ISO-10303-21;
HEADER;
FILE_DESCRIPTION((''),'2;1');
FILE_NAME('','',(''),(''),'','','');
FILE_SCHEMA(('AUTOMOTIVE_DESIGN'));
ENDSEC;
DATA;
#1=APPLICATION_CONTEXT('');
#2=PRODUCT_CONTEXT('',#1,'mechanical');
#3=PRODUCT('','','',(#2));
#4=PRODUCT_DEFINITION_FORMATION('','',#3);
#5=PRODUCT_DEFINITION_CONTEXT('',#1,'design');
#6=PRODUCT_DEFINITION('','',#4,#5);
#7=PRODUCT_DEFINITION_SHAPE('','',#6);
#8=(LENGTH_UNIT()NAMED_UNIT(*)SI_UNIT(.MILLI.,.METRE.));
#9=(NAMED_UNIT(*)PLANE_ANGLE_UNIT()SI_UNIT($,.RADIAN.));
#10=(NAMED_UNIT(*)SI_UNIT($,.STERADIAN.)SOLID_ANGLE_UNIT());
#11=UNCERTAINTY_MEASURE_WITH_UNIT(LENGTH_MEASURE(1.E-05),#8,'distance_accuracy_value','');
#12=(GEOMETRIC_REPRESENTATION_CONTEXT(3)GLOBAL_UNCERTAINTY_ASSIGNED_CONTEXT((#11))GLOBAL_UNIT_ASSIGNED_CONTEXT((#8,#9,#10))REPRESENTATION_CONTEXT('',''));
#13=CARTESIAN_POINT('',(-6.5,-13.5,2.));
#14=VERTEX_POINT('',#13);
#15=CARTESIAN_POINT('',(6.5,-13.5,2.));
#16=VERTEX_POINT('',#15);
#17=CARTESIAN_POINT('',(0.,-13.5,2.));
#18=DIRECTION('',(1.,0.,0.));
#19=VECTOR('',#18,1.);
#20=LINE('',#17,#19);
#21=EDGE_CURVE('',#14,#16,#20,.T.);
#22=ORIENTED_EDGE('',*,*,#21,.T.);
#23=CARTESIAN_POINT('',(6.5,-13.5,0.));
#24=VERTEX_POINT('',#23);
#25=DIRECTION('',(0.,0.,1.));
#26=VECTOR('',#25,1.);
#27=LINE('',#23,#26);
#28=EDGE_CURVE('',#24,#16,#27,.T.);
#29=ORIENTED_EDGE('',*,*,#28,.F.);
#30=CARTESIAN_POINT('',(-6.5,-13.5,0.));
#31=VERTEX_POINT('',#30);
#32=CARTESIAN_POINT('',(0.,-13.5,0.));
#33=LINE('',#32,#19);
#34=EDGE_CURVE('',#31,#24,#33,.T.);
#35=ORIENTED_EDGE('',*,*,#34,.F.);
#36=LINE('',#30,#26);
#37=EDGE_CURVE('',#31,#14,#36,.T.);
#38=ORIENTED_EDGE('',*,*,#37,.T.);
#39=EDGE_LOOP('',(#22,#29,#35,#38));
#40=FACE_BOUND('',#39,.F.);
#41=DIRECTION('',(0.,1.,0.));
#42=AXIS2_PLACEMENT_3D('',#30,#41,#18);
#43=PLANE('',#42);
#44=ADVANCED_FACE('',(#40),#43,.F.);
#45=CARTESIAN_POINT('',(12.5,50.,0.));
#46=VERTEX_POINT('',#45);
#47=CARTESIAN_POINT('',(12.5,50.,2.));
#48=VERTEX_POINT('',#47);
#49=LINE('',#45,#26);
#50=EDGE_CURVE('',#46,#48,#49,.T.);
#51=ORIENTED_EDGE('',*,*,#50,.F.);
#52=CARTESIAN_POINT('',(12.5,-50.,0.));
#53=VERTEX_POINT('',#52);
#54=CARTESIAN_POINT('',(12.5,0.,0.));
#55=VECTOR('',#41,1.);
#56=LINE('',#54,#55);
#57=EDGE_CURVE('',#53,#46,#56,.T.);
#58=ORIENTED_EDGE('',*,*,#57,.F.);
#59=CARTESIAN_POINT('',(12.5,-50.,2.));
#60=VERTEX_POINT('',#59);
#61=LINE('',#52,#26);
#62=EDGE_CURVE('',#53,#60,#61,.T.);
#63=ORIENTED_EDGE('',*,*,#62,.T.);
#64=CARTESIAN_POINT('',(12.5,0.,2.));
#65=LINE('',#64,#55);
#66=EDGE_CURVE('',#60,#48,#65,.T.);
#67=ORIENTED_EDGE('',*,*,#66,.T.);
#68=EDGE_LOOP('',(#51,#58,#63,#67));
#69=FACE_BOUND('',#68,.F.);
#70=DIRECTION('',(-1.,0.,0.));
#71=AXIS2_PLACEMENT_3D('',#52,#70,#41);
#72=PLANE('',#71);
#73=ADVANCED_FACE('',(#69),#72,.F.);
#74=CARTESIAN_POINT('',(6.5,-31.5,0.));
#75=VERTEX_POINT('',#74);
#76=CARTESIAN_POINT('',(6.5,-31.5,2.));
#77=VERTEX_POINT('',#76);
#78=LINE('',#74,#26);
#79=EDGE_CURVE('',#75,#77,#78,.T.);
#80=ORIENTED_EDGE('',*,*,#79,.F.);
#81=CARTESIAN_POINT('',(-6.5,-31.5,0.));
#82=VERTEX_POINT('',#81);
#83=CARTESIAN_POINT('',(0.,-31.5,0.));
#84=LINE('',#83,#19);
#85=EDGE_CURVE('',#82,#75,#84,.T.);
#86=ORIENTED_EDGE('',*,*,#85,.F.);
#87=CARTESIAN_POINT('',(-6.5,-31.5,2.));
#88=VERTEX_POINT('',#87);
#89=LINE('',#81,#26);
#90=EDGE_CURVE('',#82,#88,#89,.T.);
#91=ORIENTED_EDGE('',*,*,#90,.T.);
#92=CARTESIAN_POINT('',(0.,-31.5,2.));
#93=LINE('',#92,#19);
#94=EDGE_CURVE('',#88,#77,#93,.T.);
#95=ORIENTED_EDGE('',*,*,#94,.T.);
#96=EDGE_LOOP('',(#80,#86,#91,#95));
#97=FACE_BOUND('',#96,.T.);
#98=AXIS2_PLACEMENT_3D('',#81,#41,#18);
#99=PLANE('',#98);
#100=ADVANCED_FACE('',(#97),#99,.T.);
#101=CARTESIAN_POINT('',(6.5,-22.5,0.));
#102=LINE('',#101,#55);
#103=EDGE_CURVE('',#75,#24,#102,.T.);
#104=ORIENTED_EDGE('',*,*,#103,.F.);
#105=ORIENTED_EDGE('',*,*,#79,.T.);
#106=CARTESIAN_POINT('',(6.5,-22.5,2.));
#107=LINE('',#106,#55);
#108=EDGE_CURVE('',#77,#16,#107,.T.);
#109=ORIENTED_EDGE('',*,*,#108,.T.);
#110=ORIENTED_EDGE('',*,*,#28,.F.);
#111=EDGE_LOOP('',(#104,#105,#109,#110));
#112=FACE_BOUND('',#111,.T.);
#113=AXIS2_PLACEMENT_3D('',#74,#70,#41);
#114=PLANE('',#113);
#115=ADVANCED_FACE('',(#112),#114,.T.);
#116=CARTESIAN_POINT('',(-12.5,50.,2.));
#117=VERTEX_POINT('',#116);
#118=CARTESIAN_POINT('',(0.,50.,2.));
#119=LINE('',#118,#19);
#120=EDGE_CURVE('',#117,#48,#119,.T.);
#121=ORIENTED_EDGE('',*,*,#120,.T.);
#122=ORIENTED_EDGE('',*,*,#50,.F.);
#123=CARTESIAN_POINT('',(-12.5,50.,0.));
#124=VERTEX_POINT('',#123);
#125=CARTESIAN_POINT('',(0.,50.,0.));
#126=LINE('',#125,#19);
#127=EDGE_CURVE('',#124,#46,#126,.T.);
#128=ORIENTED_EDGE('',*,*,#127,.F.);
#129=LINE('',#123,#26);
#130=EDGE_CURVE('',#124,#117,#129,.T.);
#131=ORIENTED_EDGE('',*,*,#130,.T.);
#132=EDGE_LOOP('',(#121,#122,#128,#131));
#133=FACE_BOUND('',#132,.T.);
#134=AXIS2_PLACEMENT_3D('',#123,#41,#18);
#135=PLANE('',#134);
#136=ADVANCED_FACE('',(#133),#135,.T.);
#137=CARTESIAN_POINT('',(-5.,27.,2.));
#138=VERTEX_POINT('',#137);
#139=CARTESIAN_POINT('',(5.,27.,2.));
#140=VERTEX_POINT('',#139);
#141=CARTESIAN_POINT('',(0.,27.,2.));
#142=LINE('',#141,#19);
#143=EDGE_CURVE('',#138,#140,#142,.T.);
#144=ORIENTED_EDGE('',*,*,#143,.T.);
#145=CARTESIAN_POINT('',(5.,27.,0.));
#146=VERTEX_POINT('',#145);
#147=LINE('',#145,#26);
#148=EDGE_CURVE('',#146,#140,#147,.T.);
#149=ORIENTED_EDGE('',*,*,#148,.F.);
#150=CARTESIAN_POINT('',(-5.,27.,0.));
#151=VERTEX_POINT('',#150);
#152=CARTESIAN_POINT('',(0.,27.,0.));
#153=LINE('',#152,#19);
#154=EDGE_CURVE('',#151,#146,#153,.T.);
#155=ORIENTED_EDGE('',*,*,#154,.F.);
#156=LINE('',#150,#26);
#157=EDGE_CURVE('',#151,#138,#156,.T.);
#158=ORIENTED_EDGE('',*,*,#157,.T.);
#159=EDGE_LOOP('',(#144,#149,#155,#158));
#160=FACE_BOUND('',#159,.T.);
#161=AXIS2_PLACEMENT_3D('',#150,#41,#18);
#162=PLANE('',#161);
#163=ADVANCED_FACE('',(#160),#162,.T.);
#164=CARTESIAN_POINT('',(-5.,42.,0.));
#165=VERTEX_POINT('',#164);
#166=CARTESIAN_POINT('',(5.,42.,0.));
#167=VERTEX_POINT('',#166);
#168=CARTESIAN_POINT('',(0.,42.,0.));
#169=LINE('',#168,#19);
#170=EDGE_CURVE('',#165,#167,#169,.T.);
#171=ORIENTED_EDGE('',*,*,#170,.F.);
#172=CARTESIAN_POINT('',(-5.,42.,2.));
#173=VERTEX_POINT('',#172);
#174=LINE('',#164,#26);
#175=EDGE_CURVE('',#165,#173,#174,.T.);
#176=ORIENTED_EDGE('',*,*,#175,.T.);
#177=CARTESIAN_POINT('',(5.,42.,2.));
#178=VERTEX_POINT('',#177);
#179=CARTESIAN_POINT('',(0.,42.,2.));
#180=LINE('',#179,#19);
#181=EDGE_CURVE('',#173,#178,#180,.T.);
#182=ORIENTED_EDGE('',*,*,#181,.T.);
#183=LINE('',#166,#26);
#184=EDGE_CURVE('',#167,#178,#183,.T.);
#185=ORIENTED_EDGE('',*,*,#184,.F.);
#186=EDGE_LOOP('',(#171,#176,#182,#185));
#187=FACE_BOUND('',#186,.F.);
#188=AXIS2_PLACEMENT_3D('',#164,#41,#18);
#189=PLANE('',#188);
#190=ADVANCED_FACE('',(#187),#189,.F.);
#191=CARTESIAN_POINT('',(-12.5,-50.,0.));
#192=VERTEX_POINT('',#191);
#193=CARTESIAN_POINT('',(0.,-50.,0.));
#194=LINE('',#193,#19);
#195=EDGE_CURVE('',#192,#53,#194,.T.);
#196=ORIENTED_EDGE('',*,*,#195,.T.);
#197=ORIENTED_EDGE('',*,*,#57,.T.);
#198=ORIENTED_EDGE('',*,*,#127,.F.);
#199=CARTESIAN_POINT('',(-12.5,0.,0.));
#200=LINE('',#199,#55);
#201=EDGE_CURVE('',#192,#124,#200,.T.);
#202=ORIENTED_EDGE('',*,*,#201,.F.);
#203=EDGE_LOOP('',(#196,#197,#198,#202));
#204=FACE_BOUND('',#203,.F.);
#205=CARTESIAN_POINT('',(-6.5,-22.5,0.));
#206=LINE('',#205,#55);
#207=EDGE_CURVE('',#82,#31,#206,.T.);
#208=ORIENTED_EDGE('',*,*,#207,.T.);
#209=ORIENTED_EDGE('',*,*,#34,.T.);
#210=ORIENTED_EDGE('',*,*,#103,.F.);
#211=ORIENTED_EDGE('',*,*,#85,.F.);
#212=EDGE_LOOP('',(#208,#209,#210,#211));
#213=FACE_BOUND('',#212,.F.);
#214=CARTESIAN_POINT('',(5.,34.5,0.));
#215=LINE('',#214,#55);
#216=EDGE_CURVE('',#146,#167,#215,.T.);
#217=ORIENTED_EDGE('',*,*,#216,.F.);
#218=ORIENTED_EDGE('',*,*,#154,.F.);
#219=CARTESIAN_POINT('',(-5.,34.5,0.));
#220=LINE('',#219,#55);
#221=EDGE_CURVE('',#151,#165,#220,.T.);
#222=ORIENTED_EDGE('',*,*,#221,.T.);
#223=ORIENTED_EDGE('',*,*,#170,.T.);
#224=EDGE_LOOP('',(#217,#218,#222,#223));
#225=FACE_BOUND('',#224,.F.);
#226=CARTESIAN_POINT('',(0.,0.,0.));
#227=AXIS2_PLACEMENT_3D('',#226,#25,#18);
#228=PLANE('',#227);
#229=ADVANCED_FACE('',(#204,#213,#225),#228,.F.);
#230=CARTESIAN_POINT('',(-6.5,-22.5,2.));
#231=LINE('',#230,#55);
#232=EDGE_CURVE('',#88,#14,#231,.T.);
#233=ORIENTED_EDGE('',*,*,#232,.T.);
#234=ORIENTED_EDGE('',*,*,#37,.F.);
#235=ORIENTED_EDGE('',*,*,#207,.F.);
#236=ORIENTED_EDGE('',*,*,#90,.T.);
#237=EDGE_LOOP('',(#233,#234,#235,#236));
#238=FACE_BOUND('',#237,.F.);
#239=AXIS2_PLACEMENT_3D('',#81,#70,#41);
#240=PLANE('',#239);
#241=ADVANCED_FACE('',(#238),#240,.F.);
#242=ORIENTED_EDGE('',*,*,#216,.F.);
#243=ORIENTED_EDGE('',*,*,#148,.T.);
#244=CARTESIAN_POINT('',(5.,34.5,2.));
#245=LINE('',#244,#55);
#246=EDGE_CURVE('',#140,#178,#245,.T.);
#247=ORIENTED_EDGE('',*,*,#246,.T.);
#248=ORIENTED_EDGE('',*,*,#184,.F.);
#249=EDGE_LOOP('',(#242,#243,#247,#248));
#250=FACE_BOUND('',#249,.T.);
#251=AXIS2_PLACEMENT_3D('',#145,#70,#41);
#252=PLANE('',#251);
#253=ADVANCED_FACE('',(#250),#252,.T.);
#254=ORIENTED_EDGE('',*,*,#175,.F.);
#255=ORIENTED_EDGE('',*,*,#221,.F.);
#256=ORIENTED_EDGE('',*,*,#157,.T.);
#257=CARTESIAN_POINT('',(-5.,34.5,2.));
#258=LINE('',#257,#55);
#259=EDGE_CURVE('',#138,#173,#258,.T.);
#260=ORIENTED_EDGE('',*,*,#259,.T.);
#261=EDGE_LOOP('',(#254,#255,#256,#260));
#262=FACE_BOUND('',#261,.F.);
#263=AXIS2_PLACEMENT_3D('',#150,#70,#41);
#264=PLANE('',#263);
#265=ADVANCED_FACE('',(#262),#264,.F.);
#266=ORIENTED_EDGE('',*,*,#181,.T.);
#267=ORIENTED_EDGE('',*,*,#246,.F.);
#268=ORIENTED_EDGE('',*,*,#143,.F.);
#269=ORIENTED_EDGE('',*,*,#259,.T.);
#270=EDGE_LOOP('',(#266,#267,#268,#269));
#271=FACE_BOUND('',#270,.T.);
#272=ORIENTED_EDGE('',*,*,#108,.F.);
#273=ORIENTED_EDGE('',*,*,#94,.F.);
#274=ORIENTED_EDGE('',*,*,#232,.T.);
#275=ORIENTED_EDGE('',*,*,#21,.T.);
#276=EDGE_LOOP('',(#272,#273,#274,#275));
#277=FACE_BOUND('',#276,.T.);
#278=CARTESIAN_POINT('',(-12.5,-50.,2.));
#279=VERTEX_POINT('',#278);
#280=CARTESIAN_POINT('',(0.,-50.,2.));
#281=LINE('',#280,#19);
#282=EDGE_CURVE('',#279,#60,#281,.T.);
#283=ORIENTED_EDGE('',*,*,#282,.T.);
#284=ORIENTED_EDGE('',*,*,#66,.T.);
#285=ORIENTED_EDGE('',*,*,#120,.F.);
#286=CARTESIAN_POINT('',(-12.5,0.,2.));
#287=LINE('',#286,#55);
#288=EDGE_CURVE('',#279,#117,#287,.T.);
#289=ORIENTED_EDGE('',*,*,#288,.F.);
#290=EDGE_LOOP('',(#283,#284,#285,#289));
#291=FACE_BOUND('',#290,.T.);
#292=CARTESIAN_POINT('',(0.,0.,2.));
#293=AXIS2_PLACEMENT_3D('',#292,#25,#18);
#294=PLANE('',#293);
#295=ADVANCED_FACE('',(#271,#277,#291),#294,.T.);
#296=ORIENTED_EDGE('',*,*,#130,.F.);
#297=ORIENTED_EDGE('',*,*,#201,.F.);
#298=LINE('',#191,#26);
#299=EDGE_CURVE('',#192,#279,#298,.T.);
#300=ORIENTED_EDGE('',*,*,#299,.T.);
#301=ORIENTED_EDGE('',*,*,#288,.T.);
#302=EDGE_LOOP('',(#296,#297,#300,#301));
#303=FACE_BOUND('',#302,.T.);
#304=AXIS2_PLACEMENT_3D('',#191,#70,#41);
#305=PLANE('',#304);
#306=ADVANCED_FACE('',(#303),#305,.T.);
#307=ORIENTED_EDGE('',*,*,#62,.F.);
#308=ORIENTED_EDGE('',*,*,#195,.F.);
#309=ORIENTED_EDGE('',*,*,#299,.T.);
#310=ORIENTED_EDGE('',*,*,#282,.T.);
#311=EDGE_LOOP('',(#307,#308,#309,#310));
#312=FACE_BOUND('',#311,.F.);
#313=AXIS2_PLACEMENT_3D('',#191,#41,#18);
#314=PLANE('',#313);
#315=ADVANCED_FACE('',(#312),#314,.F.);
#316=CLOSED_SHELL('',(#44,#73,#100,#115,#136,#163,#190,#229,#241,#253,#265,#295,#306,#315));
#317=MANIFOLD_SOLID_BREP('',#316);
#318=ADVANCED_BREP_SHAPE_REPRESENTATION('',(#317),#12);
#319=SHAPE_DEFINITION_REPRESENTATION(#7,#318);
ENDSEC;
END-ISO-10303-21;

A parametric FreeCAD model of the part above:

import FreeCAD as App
import Part
import Sketcher
Q = App.Units.Quantity

doc = App.newDocument("Part")
params = doc.addObject("Spreadsheet::Sheet", "Params")
for row, (alias, value) in enumerate([
    ("sketch1_width", "25 mm"),
    ("sketch1_width2", "13 mm"),
    ("sketch1_width3", "10 mm"),
    ("sketch1_height", "100 mm"),
    ("sketch1_height2", "18 mm"),
    ("pad1_length", "2 mm"),
], start=1):
    params.set(f"A{row}", alias)
    params.set(f"B{row}", "=" + value)
    params.setAlias(f"B{row}", alias)

body = doc.addObject("PartDesign::Body", "Body")

# Sketch on XY plane
sketch1 = body.newObject("Sketcher::SketchObject", "Sketch")
sketch1.AttachmentSupport = (doc.getObject("XY_Plane"), [""])
sketch1.MapMode = "FlatFace"
sketch1.addGeometry([
    Part.LineSegment(App.Vector(-12, 50, 0), App.Vector(-12, -50, 0)),  # 0
    Part.LineSegment(App.Vector(-12, -50, 0), App.Vector(12, -50, 0)),  # 1
    Part.LineSegment(App.Vector(12, -50, 0), App.Vector(12, 50, 0)),  # 2
    Part.LineSegment(App.Vector(12, 50, 0), App.Vector(-12, 50, 0)),  # 3
    Part.LineSegment(App.Vector(6, -32, 0), App.Vector(-6, -32, 0)),  # 4
    Part.LineSegment(App.Vector(-6, -32, 0), App.Vector(-6, -14, 0)),  # 5
    Part.LineSegment(App.Vector(-6, -14, 0), App.Vector(6, -14, 0)),  # 6
    Part.LineSegment(App.Vector(6, -14, 0), App.Vector(6, -32, 0)),  # 7
    Part.LineSegment(App.Vector(5, 27, 0), App.Vector(-5, 27, 0)),  # 8
    Part.LineSegment(App.Vector(-5, 27, 0), App.Vector(-5, 42, 0)),  # 9
    Part.LineSegment(App.Vector(-5, 42, 0), App.Vector(5, 42, 0)),  # 10
    Part.LineSegment(App.Vector(5, 42, 0), App.Vector(5, 27, 0)),  # 11
], False)
sketch1.addConstraint([
    Sketcher.Constraint("Coincident", 0, 2, 1, 1),
    Sketcher.Constraint("Coincident", 1, 2, 2, 1),
    Sketcher.Constraint("Coincident", 2, 2, 3, 1),
    Sketcher.Constraint("Coincident", 3, 2, 0, 1),
    Sketcher.Constraint("Coincident", 4, 2, 5, 1),
    Sketcher.Constraint("Coincident", 5, 2, 6, 1),
    Sketcher.Constraint("Coincident", 6, 2, 7, 1),
    Sketcher.Constraint("Coincident", 7, 2, 4, 1),
    Sketcher.Constraint("Coincident", 8, 2, 9, 1),
    Sketcher.Constraint("Coincident", 9, 2, 10, 1),
    Sketcher.Constraint("Coincident", 10, 2, 11, 1),
    Sketcher.Constraint("Coincident", 11, 2, 8, 1),
    Sketcher.Constraint("Vertical", 0),
    Sketcher.Constraint("Horizontal", 1),
    Sketcher.Constraint("Vertical", 2),
    Sketcher.Constraint("Horizontal", 3),
    Sketcher.Constraint("Horizontal", 4),
    Sketcher.Constraint("Vertical", 5),
    Sketcher.Constraint("Horizontal", 6),
    Sketcher.Constraint("Vertical", 7),
    Sketcher.Constraint("Horizontal", 8),
    Sketcher.Constraint("Vertical", 9),
    Sketcher.Constraint("Horizontal", 10),
    Sketcher.Constraint("Vertical", 11),
    Sketcher.Constraint("Symmetric", 0, 2, 2, 2, -1, 1),
    Sketcher.Constraint("DistanceX", 1, 1, 1, 2, Q("25 mm")),
    Sketcher.Constraint("DistanceX", 4, 2, 4, 1, Q("13 mm")),
    Sketcher.Constraint("DistanceX", 8, 2, 8, 1, Q("10 mm")),
    Sketcher.Constraint("DistanceY", 0, 2, 0, 1, Q("100 mm")),
    Sketcher.Constraint("DistanceY", 5, 1, 5, 2, Q("18 mm")),
    Sketcher.Constraint("DistanceY", 9, 1, 9, 2, Q("15 mm")),
    Sketcher.Constraint("DistanceX", 8, 2, -1, 1, Q("5 mm")),
    Sketcher.Constraint("DistanceY", -1, 1, 8, 2, Q("27 mm")),
    Sketcher.Constraint("DistanceX", 0, 2, 4, 2, Q("6 mm")),
    Sketcher.Constraint("DistanceY", 4, 2, -1, 1, Q("31.5 mm")),
])
sketch1.setExpression("Constraints[25]", "Params.sketch1_width")
sketch1.setExpression("Constraints[26]", "Params.sketch1_width2")
sketch1.setExpression("Constraints[27]", "Params.sketch1_width3")
sketch1.setExpression("Constraints[28]", "Params.sketch1_height")
sketch1.setExpression("Constraints[29]", "Params.sketch1_height2")
pad1 = body.newObject("PartDesign::Pad", "Pad")
pad1.Profile = sketch1
pad1.setExpression("Length", "Params.pad1_length")

doc.recompute()
